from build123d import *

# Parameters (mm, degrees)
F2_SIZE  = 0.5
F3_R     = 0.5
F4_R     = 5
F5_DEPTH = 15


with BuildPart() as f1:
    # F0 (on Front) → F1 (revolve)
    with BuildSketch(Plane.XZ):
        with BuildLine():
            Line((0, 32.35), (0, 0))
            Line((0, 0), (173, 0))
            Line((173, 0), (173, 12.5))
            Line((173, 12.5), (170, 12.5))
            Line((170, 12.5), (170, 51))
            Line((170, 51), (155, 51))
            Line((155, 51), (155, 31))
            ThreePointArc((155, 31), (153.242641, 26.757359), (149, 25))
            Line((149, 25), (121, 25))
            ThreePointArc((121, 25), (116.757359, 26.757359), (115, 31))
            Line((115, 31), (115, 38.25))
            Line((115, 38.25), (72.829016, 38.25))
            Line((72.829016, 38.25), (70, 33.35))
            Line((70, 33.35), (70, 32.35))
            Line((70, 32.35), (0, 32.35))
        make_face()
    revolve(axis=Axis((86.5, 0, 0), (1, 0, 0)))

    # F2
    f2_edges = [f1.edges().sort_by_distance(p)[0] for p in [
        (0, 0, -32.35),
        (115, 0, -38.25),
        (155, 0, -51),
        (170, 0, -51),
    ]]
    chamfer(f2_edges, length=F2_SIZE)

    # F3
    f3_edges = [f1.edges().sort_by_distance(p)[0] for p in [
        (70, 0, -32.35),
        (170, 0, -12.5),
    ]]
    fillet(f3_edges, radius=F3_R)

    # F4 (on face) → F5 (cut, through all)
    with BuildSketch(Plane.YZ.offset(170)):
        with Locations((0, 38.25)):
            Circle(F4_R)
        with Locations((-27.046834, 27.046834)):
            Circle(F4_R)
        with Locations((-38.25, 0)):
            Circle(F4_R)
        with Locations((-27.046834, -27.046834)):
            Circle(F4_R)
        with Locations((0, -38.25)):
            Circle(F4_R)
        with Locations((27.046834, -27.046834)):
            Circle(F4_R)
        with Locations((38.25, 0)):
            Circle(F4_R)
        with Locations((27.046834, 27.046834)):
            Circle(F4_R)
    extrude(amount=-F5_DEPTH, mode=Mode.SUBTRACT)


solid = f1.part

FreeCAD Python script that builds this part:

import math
import FreeCAD as App
import Part
import Sketcher

V = App.Vector
Q = App.Units.Quantity


def edges_at(feature, points):
    """Names of the edges that pass closest to the given points."""
    edges = feature.Shape.Edges
    near = lambda p: min(range(len(edges)), key=lambda i: edges[i].distToShape(Part.Vertex(*p))[0])
    return sorted({f"Edge{near(p) + 1}" for p in points})

doc = App.newDocument("Part")
body = doc.addObject("PartDesign::Body", "Body")

# Sketch on XZ plane
sketch1 = doc.addObject("Sketcher::SketchObject", "Sketch")
body.addObject(sketch1)
sketch1.AttachmentSupport = (doc.XZ_Plane, [""])
sketch1.MapMode = "FlatFace"
sketch1.addGeometry(Part.LineSegment(V(0, 32.4, 0), V(0, 0, 0)), False)
sketch1.addGeometry(Part.LineSegment(V(0, 0, 0), V(173, 0, 0)), False)
sketch1.addGeometry(Part.LineSegment(V(173, 0, 0), V(173, 12.5, 0)), False)
sketch1.addGeometry(Part.LineSegment(V(173, 12.5, 0), V(170, 12.5, 0)), False)
sketch1.addGeometry(Part.LineSegment(V(170, 12.5, 0), V(170, 51, 0)), False)
sketch1.addGeometry(Part.LineSegment(V(170, 51, 0), V(155, 51, 0)), False)
sketch1.addGeometry(Part.LineSegment(V(155, 51, 0), V(155, 31, 0)), False)
sketch1.addGeometry(Part.ArcOfCircle(Part.Circle(V(149, 31, 0), V(0, 0, 1), 6), math.radians(-90), math.radians(0)), False)
sketch1.addGeometry(Part.LineSegment(V(149, 25, 0), V(121, 25, 0)), False)
sketch1.addGeometry(Part.ArcOfCircle(Part.Circle(V(121, 31, 0), V(0, 0, 1), 6), math.radians(180), math.radians(270)), False)
sketch1.addGeometry(Part.LineSegment(V(115, 31, 0), V(115, 38.2, 0)), False)
sketch1.addGeometry(Part.LineSegment(V(115, 38.2, 0), V(72.8, 38.2, 0)), False)
sketch1.addGeometry(Part.LineSegment(V(72.8, 38.2, 0), V(70, 33.4, 0)), False)
sketch1.addGeometry(Part.LineSegment(V(70, 33.4, 0), V(70, 32.4, 0)), False)
sketch1.addGeometry(Part.LineSegment(V(70, 32.4, 0), V(0, 32.4, 0)), False)
sketch1.addConstraint(Sketcher.Constraint("Coincident", 0, 2, 1, 1))
sketch1.addConstraint(Sketcher.Constraint("Coincident", 1, 2, 2, 1))
sketch1.addConstraint(Sketcher.Constraint("Coincident", 2, 2, 3, 1))
sketch1.addConstraint(Sketcher.Constraint("Coincident", 3, 2, 4, 1))
sketch1.addConstraint(Sketcher.Constraint("Coincident", 4, 2, 5, 1))
sketch1.addConstraint(Sketcher.Constraint("Coincident", 5, 2, 6, 1))
sketch1.addConstraint(Sketcher.Constraint("Tangent", 6, 2, 7, 2))
sketch1.addConstraint(Sketcher.Constraint("Tangent", 7, 1, 8, 1))
sketch1.addConstraint(Sketcher.Constraint("Tangent", 8, 2, 9, 2))
sketch1.addConstraint(Sketcher.Constraint("Tangent", 9, 1, 10, 1))
sketch1.addConstraint(Sketcher.Constraint("Coincident", 10, 2, 11, 1))
sketch1.addConstraint(Sketcher.Constraint("Coincident", 11, 2, 12, 1))
sketch1.addConstraint(Sketcher.Constraint("Coincident", 12, 2, 13, 1))
sketch1.addConstraint(Sketcher.Constraint("Coincident", 13, 2, 14, 1))
sketch1.addConstraint(Sketcher.Constraint("Coincident", 14, 2, 0, 1))
sketch1.addConstraint(Sketcher.Constraint("Vertical", 0))
sketch1.addConstraint(Sketcher.Constraint("Horizontal", 1))
sketch1.addConstraint(Sketcher.Constraint("Vertical", 2))
sketch1.addConstraint(Sketcher.Constraint("Horizontal", 3))
sketch1.addConstraint(Sketcher.Constraint("Vertical", 4))
sketch1.addConstraint(Sketcher.Constraint("Horizontal", 5))
sketch1.addConstraint(Sketcher.Constraint("Vertical", 6))
sketch1.addConstraint(Sketcher.Constraint("Horizontal", 8))
sketch1.addConstraint(Sketcher.Constraint("Vertical", 10))
sketch1.addConstraint(Sketcher.Constraint("Horizontal", 11))
sketch1.addConstraint(Sketcher.Constraint("Vertical", 13))
sketch1.addConstraint(Sketcher.Constraint("Horizontal", 14))
sketch1.addConstraint(Sketcher.Constraint("Coincident", 0, 2, -1, 1))
sketch1.addConstraint(Sketcher.Constraint("Equal", 7, 9))
sketch1.addConstraint(Sketcher.Constraint("Radius", 7, Q("5.999999 mm")))
sketch1.addConstraint(Sketcher.Constraint("DistanceX", 1, 1, 1, 2, Q("173 mm")))
sketch1.addConstraint(Sketcher.Constraint("DistanceX", 3, 2, 3, 1, Q("3 mm")))
sketch1.addConstraint(Sketcher.Constraint("DistanceX", 5, 2, 5, 1, Q("15 mm")))
sketch1.addConstraint(Sketcher.Constraint("DistanceX", 8, 2, 8, 1, Q("28 mm")))
sketch1.addConstraint(Sketcher.Constraint("DistanceX", 14, 2, 14, 1, Q("70 mm")))
sketch1.addConstraint(Sketcher.Constraint("DistanceY", 6, 2, 6, 1, Q("20 mm")))
sketch1.addConstraint(Sketcher.Constraint("DistanceY", 13, 2, 13, 1, Q("1 mm")))
sketch1.addConstraint(Sketcher.Constraint("Angle", 12, Q("-119.999997 deg")))
sketch1.addConstraint(Sketcher.Constraint("DistanceY", 2, 1, 2, 2, Q("12.5 mm")))
sketch1.addConstraint(Sketcher.Constraint("DistanceY", 4, 1, 4, 2, Q("38.5 mm")))
sketch1.addConstraint(Sketcher.Constraint("DistanceY", 0, 2, 0, 1, Q("32.35 mm")))
sketch1.addConstraint(Sketcher.Constraint("DistanceY", 10, 1, 10, 2, Q("7.25 mm")))
revolution = doc.addObject("PartDesign::Revolution", "Revolution")
body.addObject(revolution)
revolution.Profile = sketch1
revolution.ReferenceAxis = (sketch1, ["H_Axis"])
revolution.Angle = 360
doc.recompute()

chamfer = doc.addObject("PartDesign::Chamfer", "Chamfer")
body.addObject(chamfer)
chamfer.Base = (revolution, edges_at(revolution, [
    (0, 0, -32.35),
    (115, 0, -38.25),
    (155, 0, -51),
    (170, 0, -51),
]))
chamfer.Size = 0.5
doc.recompute()

fillet = doc.addObject("PartDesign::Fillet", "Fillet")
body.addObject(fillet)
fillet.Base = (chamfer, edges_at(chamfer, [(70, 0, -32.35), (170, 0, -12.5)]))
fillet.Radius = 0.5

# Sketch on YZ plane
sketch2 = doc.addObject("Sketcher::SketchObject", "Sketch001")
body.addObject(sketch2)
sketch2.AttachmentSupport = (doc.YZ_Plane, [""])
sketch2.MapMode = "FlatFace"
sketch2.AttachmentOffset = App.Placement(V(0, 0, 170), App.Rotation())
sketch2.addGeometry(Part.Circle(V(0, 38, 0), V(0, 0, 1), 5), False)
sketch2.addGeometry(Part.Circle(V(-27, 27, 0), V(0, 0, 1), 5), False)
sketch2.addGeometry(Part.Circle(V(-38, 0, 0), V(0, 0, 1), 5), False)
sketch2.addGeometry(Part.Circle(V(-27, -27, 0), V(0, 0, 1), 5), False)
sketch2.addGeometry(Part.Circle(V(0, -38, 0), V(0, 0, 1), 5), False)
sketch2.addGeometry(Part.Circle(V(27, -27, 0), V(0, 0, 1), 5), False)
sketch2.addGeometry(Part.Circle(V(38, 0, 0), V(0, 0, 1), 5), False)
sketch2.addGeometry(Part.Circle(V(27, 27, 0), V(0, 0, 1), 5), False)
sketch2.addConstraint(Sketcher.Constraint("Equal", 0, 1))
sketch2.addConstraint(Sketcher.Constraint("Equal", 1, 2))
sketch2.addConstraint(Sketcher.Constraint("Equal", 2, 3))
sketch2.addConstraint(Sketcher.Constraint("Equal", 3, 4))
sketch2.addConstraint(Sketcher.Constraint("Equal", 4, 5))
sketch2.addConstraint(Sketcher.Constraint("Equal", 5, 6))
sketch2.addConstraint(Sketcher.Constraint("Equal", 6, 7))
sketch2.addConstraint(Sketcher.Constraint("Symmetric", 0, 3, 4, 3, -1, 1))
sketch2.addConstraint(Sketcher.Constraint("Symmetric", 1, 3, 5, 3, -1, 1))
sketch2.addConstraint(Sketcher.Constraint("Symmetric", 2, 3, 6, 3, -1, 1))
sketch2.addConstraint(Sketcher.Constraint("Symmetric", 3, 3, 7, 3, -1, 1))
sketch2.addConstraint(Sketcher.Constraint("Symmetric", 3, 3, 5, 3, -2))
sketch2.addConstraint(Sketcher.Constraint("PointOnObject", 0, 3, -2))
sketch2.addConstraint(Sketcher.Constraint("PointOnObject", 2, 3, -1))
sketch2.addConstraint(Sketcher.Constraint("Diameter", 0, Q("10 mm")))
sketch2.addConstraint(Sketcher.Constraint("DistanceY", 4, 3, 0, 3, Q("76.5 mm")))
sketch2.addConstraint(Sketcher.Constraint("DistanceX", 2, 3, -1, 1, Q("38.25 mm")))
sketch2.addConstraint(Sketcher.Constraint("DistanceX", 1, 3, -1, 1, Q("27.046834 mm")))
sketch2.addConstraint(Sketcher.Constraint("DistanceY", -1, 1, 1, 3, Q("27.046834 mm")))
pocket1 = doc.addObject("PartDesign::Pocket", "Pocket")
body.addObject(pocket1)
pocket1.Profile = sketch2
pocket1.Length = 15

doc.recompute()
